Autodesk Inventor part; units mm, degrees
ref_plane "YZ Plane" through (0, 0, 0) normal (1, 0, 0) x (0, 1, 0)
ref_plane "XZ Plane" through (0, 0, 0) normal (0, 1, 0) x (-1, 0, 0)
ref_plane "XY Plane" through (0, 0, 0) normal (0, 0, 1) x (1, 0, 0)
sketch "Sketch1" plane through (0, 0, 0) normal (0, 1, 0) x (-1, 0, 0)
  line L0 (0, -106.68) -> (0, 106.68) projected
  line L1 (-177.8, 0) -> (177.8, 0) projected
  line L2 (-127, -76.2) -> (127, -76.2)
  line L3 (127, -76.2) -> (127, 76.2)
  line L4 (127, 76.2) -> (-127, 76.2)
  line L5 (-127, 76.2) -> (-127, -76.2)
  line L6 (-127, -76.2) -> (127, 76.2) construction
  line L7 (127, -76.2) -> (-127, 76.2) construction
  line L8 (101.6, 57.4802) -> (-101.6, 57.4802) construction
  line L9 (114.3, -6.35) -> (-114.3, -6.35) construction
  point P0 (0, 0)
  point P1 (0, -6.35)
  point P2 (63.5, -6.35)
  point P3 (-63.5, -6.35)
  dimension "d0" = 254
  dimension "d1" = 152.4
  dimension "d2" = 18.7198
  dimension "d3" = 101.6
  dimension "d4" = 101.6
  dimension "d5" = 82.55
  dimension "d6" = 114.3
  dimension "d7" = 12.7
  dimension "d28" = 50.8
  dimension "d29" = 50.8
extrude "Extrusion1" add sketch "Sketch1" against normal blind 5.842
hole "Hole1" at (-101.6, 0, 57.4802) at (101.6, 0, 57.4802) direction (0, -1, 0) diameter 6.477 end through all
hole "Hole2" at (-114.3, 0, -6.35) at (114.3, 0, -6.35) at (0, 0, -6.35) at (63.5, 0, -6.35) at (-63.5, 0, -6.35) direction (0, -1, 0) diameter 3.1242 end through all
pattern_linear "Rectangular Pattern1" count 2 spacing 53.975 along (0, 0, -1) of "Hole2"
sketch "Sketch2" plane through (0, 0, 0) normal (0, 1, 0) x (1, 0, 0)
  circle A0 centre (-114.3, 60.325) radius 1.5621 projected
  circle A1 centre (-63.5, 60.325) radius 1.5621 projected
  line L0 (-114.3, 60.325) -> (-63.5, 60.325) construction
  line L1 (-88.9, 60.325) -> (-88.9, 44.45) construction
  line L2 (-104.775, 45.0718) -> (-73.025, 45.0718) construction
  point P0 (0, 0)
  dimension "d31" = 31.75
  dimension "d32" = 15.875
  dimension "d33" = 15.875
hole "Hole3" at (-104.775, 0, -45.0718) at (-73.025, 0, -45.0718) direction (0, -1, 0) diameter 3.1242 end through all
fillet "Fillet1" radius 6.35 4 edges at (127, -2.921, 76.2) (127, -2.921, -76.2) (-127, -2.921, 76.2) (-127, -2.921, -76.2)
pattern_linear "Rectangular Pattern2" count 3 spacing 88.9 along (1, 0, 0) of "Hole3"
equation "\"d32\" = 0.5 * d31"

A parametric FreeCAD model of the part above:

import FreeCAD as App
import Part
import Sketcher

V = App.Vector
Q = App.Units.Quantity


def edges_at(feature, points):
    """Names of the edges that pass closest to the given points."""
    edges = feature.Shape.Edges
    near = lambda p: min(range(len(edges)), key=lambda i: edges[i].distToShape(Part.Vertex(*p))[0])
    return sorted({f"Edge{near(p) + 1}" for p in points})


def add_polygon(sketch, points):
    """Adds a closed chain of lines whose ends are joined by coincident constraints."""
    first, n = sketch.GeometryCount, len(points)
    for a, b in zip(points, points[1:] + points[:1]):
        sketch.addGeometry(Part.LineSegment(App.Vector(*a, 0), App.Vector(*b, 0)), False)
    for i in range(n):
        sketch.addConstraint(Sketcher.Constraint("Coincident", first + i, 2, first + (i + 1) % n, 1))

doc = App.newDocument("Part")
body = doc.addObject("PartDesign::Body", "Body")

# Sketch on XZ plane
sketch1 = body.newObject("Sketcher::SketchObject", "Sketch")
sketch1.AttachmentSupport = (doc.getObject("XZ_Plane"), [""])
sketch1.MapMode = "FlatFace"
add_polygon(sketch1, [(127, -76), (-127, -76), (-127, 76), (127, 76)])  # lines 0-3
sketch1.addConstraint(Sketcher.Constraint("Horizontal", 0))
sketch1.addConstraint(Sketcher.Constraint("Vertical", 1))
sketch1.addConstraint(Sketcher.Constraint("Horizontal", 2))
sketch1.addConstraint(Sketcher.Constraint("Vertical", 3))
sketch1.addConstraint(Sketcher.Constraint("Symmetric", 0, 2, 2, 2, -1, 1))
sketch1.addConstraint(Sketcher.Constraint("DistanceX", 0, 2, 0, 1, Q("10 in")))
sketch1.addConstraint(Sketcher.Constraint("DistanceY", 1, 1, 1, 2, Q("6 in")))
pad1 = body.newObject("PartDesign::Pad", "Pad")
pad1.Profile = sketch1
pad1.Length = Q("0.23 in")

# Sketch on XZ plane
sketch2 = body.newObject("Sketcher::SketchObject", "Sketch001")
sketch2.AttachmentSupport = (doc.getObject("XZ_Plane"), [""])
sketch2.MapMode = "FlatFace"
sketch2.addGeometry(Part.Circle(V(-101.6, 57.5, 0), V(0, 0, 1), 3.2), False)
sketch2.addGeometry(Part.Circle(V(101.6, 57.5, 0), V(0, 0, 1), 3.2), False)
sketch2.addConstraint(Sketcher.Constraint("Equal", 0, 1))
sketch2.addConstraint(Sketcher.Constraint("Symmetric", 0, 3, 1, 3, -2))
sketch2.addConstraint(Sketcher.Constraint("Diameter", 0, Q("0.255 in")))
sketch2.addConstraint(Sketcher.Constraint("DistanceX", 0, 3, -1, 1, Q("4 in")))
sketch2.addConstraint(Sketcher.Constraint("DistanceY", -1, 1, 0, 3, Q("2.263 in")))
doc.recompute()
hole = body.newObject("PartDesign::Hole", "Hole")
hole.Profile = sketch2
hole.ThreadType = "None"
hole.Diameter = Q("0.255 in")
hole.DepthType = "ThroughAll"
hole.Reversed = True

# Sketch on XZ plane
sketch3 = body.newObject("Sketcher::SketchObject", "Sketch002")
sketch3.AttachmentSupport = (doc.getObject("XZ_Plane"), [""])
sketch3.MapMode = "FlatFace"
sketch3.addGeometry(Part.Circle(V(-114.3, -6.3, 0), V(0, 0, 1), 1.6), False)
sketch3.addGeometry(Part.Circle(V(114.3, -6.3, 0), V(0, 0, 1), 1.6), False)
sketch3.addGeometry(Part.Circle(V(0, -6.3, 0), V(0, 0, 1), 1.6), False)
sketch3.addGeometry(Part.Circle(V(63.5, -6.3, 0), V(0, 0, 1), 1.6), False)
sketch3.addGeometry(Part.Circle(V(-63.5, -6.3, 0), V(0, 0, 1), 1.6), False)
sketch3.addConstraint(Sketcher.Constraint("Equal", 0, 1))
sketch3.addConstraint(Sketcher.Constraint("Equal", 1, 2))
sketch3.addConstraint(Sketcher.Constraint("Equal", 2, 3))
sketch3.addConstraint(Sketcher.Constraint("Equal", 3, 4))
sketch3.addConstraint(Sketcher.Constraint("Symmetric", 0, 3, 1, 3, -2))
sketch3.addConstraint(Sketcher.Constraint("Symmetric", 3, 3, 4, 3, -2))
sketch3.addConstraint(Sketcher.Constraint("PointOnObject", 2, 3, -2))
sketch3.addConstraint(Sketcher.Constraint("Horizontal", 1, 3, 2, 3))
sketch3.addConstraint(Sketcher.Constraint("Horizontal", 2, 3, 3, 3))
sketch3.addConstraint(Sketcher.Constraint("Diameter", 0, Q("0.123 in")))
sketch3.addConstraint(Sketcher.Constraint("DistanceX", 0, 3, 1, 3, Q("9 in")))
sketch3.addConstraint(Sketcher.Constraint("DistanceX", 3, 3, 1, 3, Q("2 in")))
sketch3.addConstraint(Sketcher.Constraint("DistanceY", 0, 3, -1, 1, Q("0.25 in")))
doc.recompute()
hole2 = body.newObject("PartDesign::Hole", "Hole001")
hole2.Profile = sketch3
hole2.ThreadType = "None"
hole2.Diameter = Q("0.123 in")
hole2.DepthType = "ThroughAll"
hole2.Reversed = True
doc.recompute()

linearpattern = body.newObject("PartDesign::LinearPattern", "LinearPattern")
linearpattern.Originals = [hole2]
linearpattern.Direction = (doc.getObject("Z_Axis"), [""])
linearpattern.Mode = "offset"
linearpattern.Offset = Q("2.125 in")
linearpattern.Occurrences = 2
linearpattern.Reversed = True
body.Tip = linearpattern

# Sketch on XZ plane
sketch4 = body.newObject("Sketcher::SketchObject", "Sketch003")
sketch4.AttachmentSupport = (doc.getObject("XZ_Plane"), [""])
sketch4.MapMode = "FlatFace"
sketch4.addGeometry(Part.Circle(V(-104.8, -45.1, 0), V(0, 0, 1), 1.6), False)
sketch4.addGeometry(Part.Circle(V(-73, -45.1, 0), V(0, 0, 1), 1.6), False)
sketch4.addConstraint(Sketcher.Constraint("Equal", 0, 1))
sketch4.addConstraint(Sketcher.Constraint("Horizontal", 0, 3, 1, 3))
sketch4.addConstraint(Sketcher.Constraint("Diameter", 0, Q("0.123 in")))
sketch4.addConstraint(Sketcher.Constraint("DistanceX", 0, 3, 1, 3, Q("1.25 in")))
sketch4.addConstraint(Sketcher.Constraint("DistanceX", 0, 3, -1, 1, Q("4.125 in")))
sketch4.addConstraint(Sketcher.Constraint("DistanceY", 0, 3, -1, 1, Q("45.0718 mm")))
doc.recompute()
hole3 = body.newObject("PartDesign::Hole", "Hole002")
hole3.Profile = sketch4
hole3.ThreadType = "None"
hole3.Diameter = Q("0.123 in")
hole3.DepthType = "ThroughAll"
hole3.Reversed = True
doc.recompute()

fillet = body.newObject("PartDesign::Fillet", "Fillet")
fillet.Base = (hole3, edges_at(hole3, [
    (127, -2.921, 76.2),
    (127, -2.921, -76.2),
    (-127, -2.921, 76.2),
    (-127, -2.921, -76.2),
]))
fillet.Radius = Q("0.25 in")
doc.recompute()

linearpattern2 = body.newObject("PartDesign::LinearPattern", "LinearPattern001")
linearpattern2.Originals = [hole3]
linearpattern2.Direction = (doc.getObject("X_Axis"), [""])
linearpattern2.Mode = "offset"
linearpattern2.Offset = Q("3.5 in")
linearpattern2.Occurrences = 3
body.Tip = linearpattern2

doc.recompute()
